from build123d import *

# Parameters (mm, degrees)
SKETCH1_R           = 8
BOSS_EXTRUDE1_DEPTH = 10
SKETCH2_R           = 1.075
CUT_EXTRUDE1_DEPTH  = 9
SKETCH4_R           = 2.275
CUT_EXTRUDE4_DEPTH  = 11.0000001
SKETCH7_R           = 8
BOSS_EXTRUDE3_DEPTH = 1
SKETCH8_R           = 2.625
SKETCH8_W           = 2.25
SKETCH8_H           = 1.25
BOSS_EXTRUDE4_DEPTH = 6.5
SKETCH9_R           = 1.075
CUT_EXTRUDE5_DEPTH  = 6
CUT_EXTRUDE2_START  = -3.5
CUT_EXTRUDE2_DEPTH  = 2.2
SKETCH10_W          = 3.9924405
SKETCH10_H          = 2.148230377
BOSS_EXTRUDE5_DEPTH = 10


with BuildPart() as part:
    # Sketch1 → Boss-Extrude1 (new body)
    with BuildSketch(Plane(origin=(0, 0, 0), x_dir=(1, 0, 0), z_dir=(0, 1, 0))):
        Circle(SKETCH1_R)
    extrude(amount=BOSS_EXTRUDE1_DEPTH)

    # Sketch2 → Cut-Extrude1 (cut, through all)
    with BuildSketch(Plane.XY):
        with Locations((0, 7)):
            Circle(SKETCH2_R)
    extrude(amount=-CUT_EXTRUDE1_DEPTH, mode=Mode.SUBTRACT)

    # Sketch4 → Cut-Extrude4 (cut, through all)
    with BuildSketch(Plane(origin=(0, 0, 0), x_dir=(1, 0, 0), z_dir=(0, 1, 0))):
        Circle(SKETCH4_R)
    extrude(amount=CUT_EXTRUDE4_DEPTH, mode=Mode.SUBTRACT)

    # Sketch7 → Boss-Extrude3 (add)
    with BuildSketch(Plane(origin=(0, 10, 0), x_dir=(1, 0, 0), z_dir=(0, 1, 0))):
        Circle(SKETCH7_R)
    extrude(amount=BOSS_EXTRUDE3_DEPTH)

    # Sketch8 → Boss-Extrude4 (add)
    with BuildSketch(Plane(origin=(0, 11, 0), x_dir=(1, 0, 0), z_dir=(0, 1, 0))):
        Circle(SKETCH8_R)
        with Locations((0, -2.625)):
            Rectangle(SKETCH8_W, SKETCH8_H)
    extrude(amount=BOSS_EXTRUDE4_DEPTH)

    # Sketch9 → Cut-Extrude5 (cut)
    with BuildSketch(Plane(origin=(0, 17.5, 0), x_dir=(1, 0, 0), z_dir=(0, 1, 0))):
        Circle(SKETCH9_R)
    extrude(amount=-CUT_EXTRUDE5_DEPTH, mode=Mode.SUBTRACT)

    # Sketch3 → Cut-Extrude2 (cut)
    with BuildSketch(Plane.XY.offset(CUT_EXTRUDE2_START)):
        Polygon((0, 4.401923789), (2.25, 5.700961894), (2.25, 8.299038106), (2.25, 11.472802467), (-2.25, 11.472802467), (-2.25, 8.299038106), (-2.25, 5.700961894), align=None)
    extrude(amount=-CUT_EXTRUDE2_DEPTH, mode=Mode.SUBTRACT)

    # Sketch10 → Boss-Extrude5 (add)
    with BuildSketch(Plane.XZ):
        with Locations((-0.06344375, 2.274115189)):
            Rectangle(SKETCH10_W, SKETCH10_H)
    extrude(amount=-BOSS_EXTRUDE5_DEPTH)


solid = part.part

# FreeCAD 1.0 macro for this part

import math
import FreeCAD as App
import Part
import Sketcher

V = App.Vector
Q = App.Units.Quantity

doc = App.newDocument("Part")
body = doc.addObject("PartDesign::Body", "Body")

# Sketch on XZ plane
sketch1 = doc.addObject("Sketcher::SketchObject", "Sketch")
body.addObject(sketch1)
sketch1.AttachmentSupport = (doc.XZ_Plane, [""])
sketch1.MapMode = "FlatFace"
sketch1.addGeometry(Part.Circle(V(0, 0, 0), V(0, 0, 1), 8), False)
sketch1.addConstraint([
    Sketcher.Constraint("Coincident", 0, 3, -1, 1),
    Sketcher.Constraint("Diameter", 0, Q("16 mm")),
])
pad1 = doc.addObject("PartDesign::Pad", "Pad")
body.addObject(pad1)
pad1.Profile = sketch1
pad1.Length = 10
pad1.Reversed = True

# Sketch on XY plane
sketch2 = doc.addObject("Sketcher::SketchObject", "Sketch001")
body.addObject(sketch2)
sketch2.AttachmentSupport = (doc.XY_Plane, [""])
sketch2.MapMode = "FlatFace"
sketch2.addGeometry(Part.Circle(V(0, 7, 0), V(0, 0, 1), 1.1), False)
sketch2.addConstraint([
    Sketcher.Constraint("PointOnObject", 0, 3, -2),
    Sketcher.Constraint("Diameter", 0, Q("2.15 mm")),
    Sketcher.Constraint("DistanceY", -1, 1, 0, 3, Q("7 mm")),
])
pocket1 = doc.addObject("PartDesign::Pocket", "Pocket")
body.addObject(pocket1)
pocket1.Profile = sketch2
pocket1.Type = "ThroughAll"

# Sketch on XZ plane
sketch3 = doc.addObject("Sketcher::SketchObject", "Sketch002")
body.addObject(sketch3)
sketch3.AttachmentSupport = (doc.XZ_Plane, [""])
sketch3.MapMode = "FlatFace"
sketch3.addGeometry(Part.Circle(V(0, 0, 0), V(0, 0, 1), 2.3), False)
sketch3.addConstraint([
    Sketcher.Constraint("Coincident", 0, 3, -1, 1),
    Sketcher.Constraint("Diameter", 0, Q("4.55 mm")),
])
pocket2 = doc.addObject("PartDesign::Pocket", "Pocket001")
body.addObject(pocket2)
pocket2.Profile = sketch3
pocket2.Type = "ThroughAll"

# Sketch on XZ plane
sketch4 = doc.addObject("Sketcher::SketchObject", "Sketch003")
body.addObject(sketch4)
sketch4.AttachmentSupport = (doc.XZ_Plane, [""])
sketch4.MapMode = "FlatFace"
sketch4.AttachmentOffset = App.Placement(V(0, 0, -10), App.Rotation())
sketch4.addGeometry(Part.Circle(V(0, 0, 0), V(0, 0, 1), 8), False)
sketch4.addConstraint([
    Sketcher.Constraint("Coincident", 0, 3, -1, 1),
    Sketcher.Constraint("Diameter", 0, Q("16 mm")),
])
pad2 = doc.addObject("PartDesign::Pad", "Pad001")
body.addObject(pad2)
pad2.Profile = sketch4
pad2.Length = 1
pad2.Reversed = True

# Sketch on XZ plane
sketch5 = doc.addObject("Sketcher::SketchObject", "Sketch004")
body.addObject(sketch5)
sketch5.AttachmentSupport = (doc.XZ_Plane, [""])
sketch5.MapMode = "FlatFace"
sketch5.AttachmentOffset = App.Placement(V(0, 0, -11), App.Rotation())
sketch5.addGeometry([
    Part.ArcOfCircle(Part.Circle(V(0, 0, 0), V(0, 0, 1), 2.6), math.radians(115), math.radians(425)),
    Part.LineSegment(V(-1.1, 2.4, 0), V(-1.1, 3.2, 0)),
    Part.LineSegment(V(-1.1, 3.2, 0), V(1.1, 3.2, 0)),
    Part.LineSegment(V(1.1, 3.2, 0), V(1.1, 2.4, 0)),
], False)
sketch5.addConstraint([
    Sketcher.Constraint("Coincident", 0, 1, 1, 1),
    Sketcher.Constraint("Coincident", 1, 2, 2, 1),
    Sketcher.Constraint("Coincident", 2, 2, 3, 1),
    Sketcher.Constraint("Coincident", 3, 2, 0, 2),
    Sketcher.Constraint("Vertical", 1),
    Sketcher.Constraint("Horizontal", 2),
    Sketcher.Constraint("Vertical", 3),
    Sketcher.Constraint("Coincident", 0, 3, -1, 1),
    Sketcher.Constraint("Horizontal", 0, 1, 3, 2),
    Sketcher.Constraint("Radius", 0, Q("2.625 mm")),
    Sketcher.Constraint("DistanceX", 2, 1, 2, 2, Q("2.25 mm")),
    Sketcher.Constraint("DistanceY", -1, 1, 1, 2, Q("3.25 mm")),
])
pad3 = doc.addObject("PartDesign::Pad", "Pad002")
body.addObject(pad3)
pad3.Profile = sketch5
pad3.Length = 6.5
pad3.Reversed = True

# Sketch on XZ plane
sketch6 = doc.addObject("Sketcher::SketchObject", "Sketch005")
body.addObject(sketch6)
sketch6.AttachmentSupport = (doc.XZ_Plane, [""])
sketch6.MapMode = "FlatFace"
sketch6.AttachmentOffset = App.Placement(V(0, 0, -17.5), App.Rotation())
sketch6.addGeometry(Part.Circle(V(0, 0, 0), V(0, 0, 1), 1.1), False)
sketch6.addConstraint([
    Sketcher.Constraint("Coincident", 0, 3, -1, 1),
    Sketcher.Constraint("Diameter", 0, Q("2.15 mm")),
])
pocket3 = doc.addObject("PartDesign::Pocket", "Pocket002")
body.addObject(pocket3)
pocket3.Profile = sketch6
pocket3.Length = 6
pocket3.Reversed = True

# Sketch on XY plane
sketch7 = doc.addObject("Sketcher::SketchObject", "Sketch006")
body.addObject(sketch7)
sketch7.AttachmentSupport = (doc.XY_Plane, [""])
sketch7.MapMode = "FlatFace"
sketch7.AttachmentOffset = App.Placement(V(0, 0, -3.5), App.Rotation())
sketch7.addGeometry([
    Part.LineSegment(V(0, 4.4, 0), V(2.2, 5.7, 0)),  # 0
    Part.LineSegment(V(2.2, 5.7, 0), V(2.2, 11.5, 0)),  # 1
    Part.LineSegment(V(2.2, 11.5, 0), V(-2.2, 11.5, 0)),  # 2
    Part.LineSegment(V(-2.2, 11.5, 0), V(-2.2, 5.7, 0)),  # 3
    Part.LineSegment(V(-2.2, 5.7, 0), V(0, 4.4, 0)),  # 4
], False)
sketch7.addConstraint([
    Sketcher.Constraint("Coincident", 0, 2, 1, 1),
    Sketcher.Constraint("Coincident", 1, 2, 2, 1),
    Sketcher.Constraint("Coincident", 2, 2, 3, 1),
    Sketcher.Constraint("Coincident", 3, 2, 4, 1),
    Sketcher.Constraint("Coincident", 4, 2, 0, 1),
    Sketcher.Constraint("Vertical", 1),
    Sketcher.Constraint("Horizontal", 2),
    Sketcher.Constraint("Vertical", 3),
    Sketcher.Constraint("Symmetric", 0, 2, 3, 2, -2),
    Sketcher.Constraint("PointOnObject", 4, 2, -2),
    Sketcher.Constraint("Angle", 0, Q("30 deg")),
    Sketcher.Constraint("DistanceX", 2, 2, 2, 1, Q("4.5 mm")),
    Sketcher.Constraint("DistanceY", 1, 1, 1, 2, Q("5.771841 mm")),
    Sketcher.Constraint("DistanceY", -1, 1, 0, 2, Q("5.700962 mm")),
])
pocket4 = doc.addObject("PartDesign::Pocket", "Pocket003")
body.addObject(pocket4)
pocket4.Profile = sketch7
pocket4.Length = 2.2

# Sketch on XZ plane
sketch8 = doc.addObject("Sketcher::SketchObject", "Sketch007")
body.addObject(sketch8)
sketch8.AttachmentSupport = (doc.XZ_Plane, [""])
sketch8.MapMode = "FlatFace"
sketch8.addGeometry([
    Part.LineSegment(V(-2.1, 3.3, 0), V(-2.1, 1.2, 0)),
    Part.LineSegment(V(-2.1, 1.2, 0), V(1.9, 1.2, 0)),
    Part.LineSegment(V(1.9, 1.2, 0), V(1.9, 3.3, 0)),
    Part.LineSegment(V(1.9, 3.3, 0), V(-2.1, 3.3, 0)),
], False)
sketch8.addConstraint([
    Sketcher.Constraint("Coincident", 0, 2, 1, 1),
    Sketcher.Constraint("Coincident", 1, 2, 2, 1),
    Sketcher.Constraint("Coincident", 2, 2, 3, 1),
    Sketcher.Constraint("Coincident", 3, 2, 0, 1),
    Sketcher.Constraint("Vertical", 0),
    Sketcher.Constraint("Horizontal", 1),
    Sketcher.Constraint("Vertical", 2),
    Sketcher.Constraint("Horizontal", 3),
    Sketcher.Constraint("DistanceY", -1, 1, 0, 2, Q("1.2 mm")),
    Sketcher.Constraint("DistanceX", 1, 1, 1, 2, Q("3.99244 mm")),
    Sketcher.Constraint("DistanceY", 0, 2, 0, 1, Q("2.14823 mm")),
    Sketcher.Constraint("DistanceX", 0, 2, -1, 1, Q("2.059664 mm")),
])
pad4 = doc.addObject("PartDesign::Pad", "Pad003")
body.addObject(pad4)
pad4.Profile = sketch8
pad4.Length = 10
pad4.Reversed = True

doc.recompute()
